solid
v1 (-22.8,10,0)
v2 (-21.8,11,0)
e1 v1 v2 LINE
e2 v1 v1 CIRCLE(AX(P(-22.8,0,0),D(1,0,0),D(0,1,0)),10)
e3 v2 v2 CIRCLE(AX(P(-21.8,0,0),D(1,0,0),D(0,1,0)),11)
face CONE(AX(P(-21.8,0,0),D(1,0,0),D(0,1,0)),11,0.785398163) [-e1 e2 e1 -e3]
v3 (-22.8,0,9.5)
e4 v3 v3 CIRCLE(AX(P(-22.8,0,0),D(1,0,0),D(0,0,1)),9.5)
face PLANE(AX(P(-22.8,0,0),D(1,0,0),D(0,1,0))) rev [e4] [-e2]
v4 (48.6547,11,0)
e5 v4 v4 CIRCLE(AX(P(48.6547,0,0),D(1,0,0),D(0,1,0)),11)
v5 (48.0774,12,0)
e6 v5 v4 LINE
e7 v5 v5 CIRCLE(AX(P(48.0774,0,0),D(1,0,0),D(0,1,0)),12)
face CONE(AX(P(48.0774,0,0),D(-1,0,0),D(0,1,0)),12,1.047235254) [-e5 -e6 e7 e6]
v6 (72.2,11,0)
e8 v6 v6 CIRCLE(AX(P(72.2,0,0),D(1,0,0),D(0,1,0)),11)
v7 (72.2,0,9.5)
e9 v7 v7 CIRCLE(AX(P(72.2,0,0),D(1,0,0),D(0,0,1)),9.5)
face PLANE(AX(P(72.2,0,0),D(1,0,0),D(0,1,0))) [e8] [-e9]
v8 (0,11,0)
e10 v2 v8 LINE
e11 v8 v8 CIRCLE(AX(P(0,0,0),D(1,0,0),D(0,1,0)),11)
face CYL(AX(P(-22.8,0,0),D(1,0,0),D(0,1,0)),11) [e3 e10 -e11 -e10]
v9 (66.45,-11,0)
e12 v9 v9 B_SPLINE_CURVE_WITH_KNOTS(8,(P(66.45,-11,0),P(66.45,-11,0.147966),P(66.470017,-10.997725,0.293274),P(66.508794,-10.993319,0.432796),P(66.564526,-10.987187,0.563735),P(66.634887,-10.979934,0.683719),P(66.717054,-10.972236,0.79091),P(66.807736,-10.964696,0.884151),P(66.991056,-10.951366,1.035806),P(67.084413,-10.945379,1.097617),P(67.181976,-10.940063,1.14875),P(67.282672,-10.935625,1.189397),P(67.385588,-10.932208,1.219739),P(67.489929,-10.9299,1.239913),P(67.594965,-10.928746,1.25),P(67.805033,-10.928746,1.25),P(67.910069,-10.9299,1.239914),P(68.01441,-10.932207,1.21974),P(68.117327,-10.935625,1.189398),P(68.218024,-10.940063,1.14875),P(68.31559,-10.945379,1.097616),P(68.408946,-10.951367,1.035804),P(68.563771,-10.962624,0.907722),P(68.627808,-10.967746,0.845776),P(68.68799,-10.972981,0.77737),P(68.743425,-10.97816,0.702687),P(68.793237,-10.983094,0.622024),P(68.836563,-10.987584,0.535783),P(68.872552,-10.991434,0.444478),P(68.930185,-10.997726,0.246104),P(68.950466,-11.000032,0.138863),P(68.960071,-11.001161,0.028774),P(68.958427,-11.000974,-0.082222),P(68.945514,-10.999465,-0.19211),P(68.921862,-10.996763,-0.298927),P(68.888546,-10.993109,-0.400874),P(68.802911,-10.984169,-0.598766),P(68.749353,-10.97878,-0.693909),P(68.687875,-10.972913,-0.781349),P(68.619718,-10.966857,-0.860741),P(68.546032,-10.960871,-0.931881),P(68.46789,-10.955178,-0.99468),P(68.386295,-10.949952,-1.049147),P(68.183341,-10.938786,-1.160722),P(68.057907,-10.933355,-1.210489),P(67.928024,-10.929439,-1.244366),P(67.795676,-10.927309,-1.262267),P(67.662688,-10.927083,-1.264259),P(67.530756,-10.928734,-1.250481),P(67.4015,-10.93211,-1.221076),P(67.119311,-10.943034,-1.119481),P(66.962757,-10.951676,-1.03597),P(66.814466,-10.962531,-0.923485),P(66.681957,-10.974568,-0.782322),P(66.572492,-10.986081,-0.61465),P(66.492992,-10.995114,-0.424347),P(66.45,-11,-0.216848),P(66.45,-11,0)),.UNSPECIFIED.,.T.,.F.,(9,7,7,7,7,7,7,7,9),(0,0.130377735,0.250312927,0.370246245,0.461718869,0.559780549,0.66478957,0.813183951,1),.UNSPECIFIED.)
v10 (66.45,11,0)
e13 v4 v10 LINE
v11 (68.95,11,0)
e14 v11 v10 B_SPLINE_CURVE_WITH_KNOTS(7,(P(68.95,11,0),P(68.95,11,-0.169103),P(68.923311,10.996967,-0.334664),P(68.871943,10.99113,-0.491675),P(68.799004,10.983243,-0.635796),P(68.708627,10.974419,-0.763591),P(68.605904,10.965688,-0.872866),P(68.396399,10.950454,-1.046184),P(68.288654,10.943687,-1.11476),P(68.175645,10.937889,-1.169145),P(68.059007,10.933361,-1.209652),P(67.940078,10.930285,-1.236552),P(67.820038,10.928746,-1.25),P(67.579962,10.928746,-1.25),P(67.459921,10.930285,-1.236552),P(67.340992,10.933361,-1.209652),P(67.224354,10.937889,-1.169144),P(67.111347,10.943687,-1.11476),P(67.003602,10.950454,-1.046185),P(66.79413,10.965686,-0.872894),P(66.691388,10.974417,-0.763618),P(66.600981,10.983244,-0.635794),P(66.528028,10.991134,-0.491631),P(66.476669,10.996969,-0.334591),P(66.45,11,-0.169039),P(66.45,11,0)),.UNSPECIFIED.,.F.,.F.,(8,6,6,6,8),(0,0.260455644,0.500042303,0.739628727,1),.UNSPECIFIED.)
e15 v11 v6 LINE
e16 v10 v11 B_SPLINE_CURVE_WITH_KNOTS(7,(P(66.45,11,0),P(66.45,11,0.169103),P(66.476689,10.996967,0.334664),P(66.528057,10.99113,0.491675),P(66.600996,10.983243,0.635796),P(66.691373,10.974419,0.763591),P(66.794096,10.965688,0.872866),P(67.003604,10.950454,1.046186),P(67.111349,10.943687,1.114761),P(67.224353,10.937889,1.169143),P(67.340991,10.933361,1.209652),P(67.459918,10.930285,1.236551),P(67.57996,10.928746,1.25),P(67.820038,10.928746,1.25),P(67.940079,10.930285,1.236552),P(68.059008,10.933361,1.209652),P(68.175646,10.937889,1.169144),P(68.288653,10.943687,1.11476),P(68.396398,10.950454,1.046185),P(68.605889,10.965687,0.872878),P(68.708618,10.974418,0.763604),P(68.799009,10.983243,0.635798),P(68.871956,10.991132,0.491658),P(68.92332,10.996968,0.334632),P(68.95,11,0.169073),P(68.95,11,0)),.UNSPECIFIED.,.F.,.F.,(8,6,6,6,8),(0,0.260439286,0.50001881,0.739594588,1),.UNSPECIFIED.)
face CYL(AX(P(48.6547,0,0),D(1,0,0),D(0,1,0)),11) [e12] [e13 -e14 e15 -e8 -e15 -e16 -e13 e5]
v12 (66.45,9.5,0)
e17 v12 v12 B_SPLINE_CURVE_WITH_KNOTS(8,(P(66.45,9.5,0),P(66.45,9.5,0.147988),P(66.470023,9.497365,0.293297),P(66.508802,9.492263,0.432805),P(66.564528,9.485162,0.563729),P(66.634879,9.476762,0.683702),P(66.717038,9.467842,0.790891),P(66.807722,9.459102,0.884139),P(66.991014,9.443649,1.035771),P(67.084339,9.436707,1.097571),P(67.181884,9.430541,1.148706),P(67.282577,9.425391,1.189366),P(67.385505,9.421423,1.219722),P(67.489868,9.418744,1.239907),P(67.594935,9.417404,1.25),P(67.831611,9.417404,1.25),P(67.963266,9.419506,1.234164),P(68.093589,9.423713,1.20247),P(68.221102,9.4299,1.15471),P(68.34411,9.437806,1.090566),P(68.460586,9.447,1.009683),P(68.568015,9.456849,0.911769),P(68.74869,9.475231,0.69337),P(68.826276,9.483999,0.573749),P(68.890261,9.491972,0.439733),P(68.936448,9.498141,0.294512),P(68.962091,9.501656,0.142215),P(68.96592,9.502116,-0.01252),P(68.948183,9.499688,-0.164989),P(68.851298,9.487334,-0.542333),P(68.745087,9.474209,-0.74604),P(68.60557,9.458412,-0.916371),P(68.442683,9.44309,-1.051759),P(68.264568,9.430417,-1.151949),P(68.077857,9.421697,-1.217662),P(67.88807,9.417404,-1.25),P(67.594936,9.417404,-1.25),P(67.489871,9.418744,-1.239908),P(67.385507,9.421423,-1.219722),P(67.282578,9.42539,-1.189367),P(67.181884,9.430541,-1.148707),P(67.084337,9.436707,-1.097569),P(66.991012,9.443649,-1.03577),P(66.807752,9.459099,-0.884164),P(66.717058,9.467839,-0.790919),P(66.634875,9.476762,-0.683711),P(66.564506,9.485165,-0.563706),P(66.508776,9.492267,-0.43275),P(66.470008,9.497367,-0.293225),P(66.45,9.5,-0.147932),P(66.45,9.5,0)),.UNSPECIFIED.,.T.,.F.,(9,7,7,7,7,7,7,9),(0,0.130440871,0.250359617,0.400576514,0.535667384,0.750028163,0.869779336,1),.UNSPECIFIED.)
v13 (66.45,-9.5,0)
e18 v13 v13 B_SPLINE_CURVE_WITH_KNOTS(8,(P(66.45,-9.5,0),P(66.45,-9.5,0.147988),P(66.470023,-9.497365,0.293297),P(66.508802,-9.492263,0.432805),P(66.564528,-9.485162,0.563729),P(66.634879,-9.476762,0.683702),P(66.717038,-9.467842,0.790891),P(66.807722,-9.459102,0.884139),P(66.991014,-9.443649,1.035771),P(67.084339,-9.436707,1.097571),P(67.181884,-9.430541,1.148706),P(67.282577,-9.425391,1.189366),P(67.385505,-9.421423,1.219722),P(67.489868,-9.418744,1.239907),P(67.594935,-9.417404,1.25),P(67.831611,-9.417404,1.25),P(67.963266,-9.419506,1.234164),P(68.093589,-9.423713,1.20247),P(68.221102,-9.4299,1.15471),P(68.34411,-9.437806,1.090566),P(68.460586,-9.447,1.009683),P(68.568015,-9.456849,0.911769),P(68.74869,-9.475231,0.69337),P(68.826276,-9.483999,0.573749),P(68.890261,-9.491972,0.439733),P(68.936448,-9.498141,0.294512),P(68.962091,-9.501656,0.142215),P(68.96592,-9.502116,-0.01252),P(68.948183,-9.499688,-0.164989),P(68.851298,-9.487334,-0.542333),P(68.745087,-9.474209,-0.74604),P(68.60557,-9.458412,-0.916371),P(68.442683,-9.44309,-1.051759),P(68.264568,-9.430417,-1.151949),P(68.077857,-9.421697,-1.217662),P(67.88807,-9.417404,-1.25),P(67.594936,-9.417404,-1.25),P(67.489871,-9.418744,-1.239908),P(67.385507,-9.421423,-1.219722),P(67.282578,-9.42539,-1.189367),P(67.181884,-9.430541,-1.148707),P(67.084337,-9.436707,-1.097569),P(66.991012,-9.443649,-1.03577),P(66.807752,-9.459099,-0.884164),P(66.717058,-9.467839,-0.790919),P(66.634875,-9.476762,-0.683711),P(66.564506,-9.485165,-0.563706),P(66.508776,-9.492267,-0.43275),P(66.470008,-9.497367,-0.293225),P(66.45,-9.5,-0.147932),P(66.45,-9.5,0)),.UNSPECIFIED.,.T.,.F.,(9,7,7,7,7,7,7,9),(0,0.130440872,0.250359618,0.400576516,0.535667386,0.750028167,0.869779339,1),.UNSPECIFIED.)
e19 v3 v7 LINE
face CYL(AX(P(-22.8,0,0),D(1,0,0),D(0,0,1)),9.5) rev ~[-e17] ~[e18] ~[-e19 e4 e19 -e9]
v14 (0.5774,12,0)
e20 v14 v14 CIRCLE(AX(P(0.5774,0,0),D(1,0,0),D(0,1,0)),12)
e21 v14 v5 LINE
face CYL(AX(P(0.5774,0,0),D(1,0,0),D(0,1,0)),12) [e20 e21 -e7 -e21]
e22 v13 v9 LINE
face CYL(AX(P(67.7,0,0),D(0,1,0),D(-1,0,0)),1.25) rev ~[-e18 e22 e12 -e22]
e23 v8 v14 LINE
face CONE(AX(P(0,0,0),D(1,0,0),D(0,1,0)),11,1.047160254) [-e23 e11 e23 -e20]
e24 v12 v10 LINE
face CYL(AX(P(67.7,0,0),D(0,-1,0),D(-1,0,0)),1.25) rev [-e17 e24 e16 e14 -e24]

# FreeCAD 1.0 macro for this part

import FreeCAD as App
import Part
import Sketcher

V = App.Vector


def edges_at(feature, points):
    """Names of the edges that pass closest to the given points."""
    edges = feature.Shape.Edges
    near = lambda p: min(range(len(edges)), key=lambda i: edges[i].distToShape(Part.Vertex(*p))[0])
    return sorted({f"Edge{near(p) + 1}" for p in points})


def add_polygon(sketch, points):
    """Adds a closed chain of lines whose ends are joined by coincident constraints."""
    first, n = sketch.GeometryCount, len(points)
    for a, b in zip(points, points[1:] + points[:1]):
        sketch.addGeometry(Part.LineSegment(App.Vector(*a, 0), App.Vector(*b, 0)), False)
    for i in range(n):
        sketch.addConstraint(Sketcher.Constraint("Coincident", first + i, 2, first + (i + 1) % n, 1))

doc = App.newDocument("Part")
body = doc.addObject("PartDesign::Body", "Body")

sketch1 = body.newObject("Sketcher::SketchObject", "Sketch")
sketch1.AttachmentSupport = (doc.getObject("XY_Plane"), [""])
sketch1.MapMode = "FlatFace"
add_polygon(sketch1, [(-22.8, 11), (-22.8, 0), (0, 0), (0, 9), (64.2, 9), (64.2, 0), (72.2, 0), (72.2, 11), (48.7, 11), (48.1, 12), (0.6, 12), (0, 11)])
sketch1.addConstraint([
    Sketcher.Constraint("Vertical", 0),
    Sketcher.Constraint("Horizontal", 1),
    Sketcher.Constraint("Vertical", 2),
    Sketcher.Constraint("Horizontal", 3),
    Sketcher.Constraint("Vertical", 4),
    Sketcher.Constraint("Horizontal", 5),
    Sketcher.Constraint("Vertical", 6),
    Sketcher.Constraint("Horizontal", 7),
    Sketcher.Constraint("Horizontal", 9),
    Sketcher.Constraint("Horizontal", 11),
    Sketcher.Constraint("Coincident", 1, 2, -1, 1),
    Sketcher.Constraint("PointOnObject", 4, 2, -1),
    Sketcher.Constraint("PointOnObject", 10, 2, -2),
    Sketcher.Constraint("Horizontal", 7, 2, 10, 2),
    Sketcher.Constraint("Equal", 8, 10),
    Sketcher.Constraint("DistanceX", 5, 1, 5, 2, 8.0),
    Sketcher.Constraint("DistanceY", 0, 2, 0, 1, 11.0),
    Sketcher.Constraint("DistanceY", 2, 1, 2, 2, 9.0),
    Sketcher.Constraint("DistanceX", 1, 1, 1, 2, 22.8),
    Sketcher.Constraint("DistanceX", 9, 2, 9, 1, 47.5),
    Sketcher.Constraint("DistanceX", 0, 2, 5, 2, 95.0),
    Sketcher.Constraint("DistanceY", 7, 2, 8, 2, 1.0),
    Sketcher.Constraint("DistanceX", 7, 2, 7, 1, 23.5453),
])
revolution = body.newObject("PartDesign::Revolution", "Revolution")
revolution.Profile = sketch1
revolution.ReferenceAxis = (sketch1, ["H_Axis"])
revolution.Angle = 360

sketch2 = body.newObject("Sketcher::SketchObject", "Sketch001")
sketch2.AttachmentSupport = (doc.getObject("YZ_Plane"), [""])
sketch2.MapMode = "FlatFace"
sketch2.AttachmentOffset = App.Placement(V(0, 0, -22.8), App.Rotation())
sketch2.addGeometry(Part.Circle(V(0, 0, 0), V(0, 0, 1), 10), False)
sketch2.addConstraint([
    Sketcher.Constraint("Coincident", 0, 3, -1, 1),
    Sketcher.Constraint("Diameter", 0, 19.0),
])
doc.recompute()
hole = body.newObject("PartDesign::Hole", "Hole")
hole.Profile = sketch2
hole.ThreadType = "None"
hole.Diameter = 19
hole.DepthType = "ThroughAll"
hole.Reversed = True
doc.recompute()

chamfer = body.newObject("PartDesign::Chamfer", "Chamfer")
chamfer.Base = (hole, edges_at(hole, [(-22.8, -11, 0)]))
chamfer.Size = 1

sketch3 = body.newObject("Sketcher::SketchObject", "Sketch002")
sketch3.AttachmentSupport = (doc.getObject("XZ_Plane"), [""])
sketch3.MapMode = "FlatFace"
sketch3.addGeometry(Part.Circle(V(67.7, 0, 0), V(0, 0, 1), 1.2), False)
sketch3.addConstraint([
    Sketcher.Constraint("PointOnObject", 0, 3, -1),
    Sketcher.Constraint("Diameter", 0, 2.5),
    Sketcher.Constraint("DistanceX", -1, 1, 0, 3, 67.7),
])
pocket1 = body.newObject("PartDesign::Pocket", "Pocket")
pocket1.Profile = sketch3
pocket1.Type = "ThroughAll"
pocket1.Midplane = True

doc.recompute()
